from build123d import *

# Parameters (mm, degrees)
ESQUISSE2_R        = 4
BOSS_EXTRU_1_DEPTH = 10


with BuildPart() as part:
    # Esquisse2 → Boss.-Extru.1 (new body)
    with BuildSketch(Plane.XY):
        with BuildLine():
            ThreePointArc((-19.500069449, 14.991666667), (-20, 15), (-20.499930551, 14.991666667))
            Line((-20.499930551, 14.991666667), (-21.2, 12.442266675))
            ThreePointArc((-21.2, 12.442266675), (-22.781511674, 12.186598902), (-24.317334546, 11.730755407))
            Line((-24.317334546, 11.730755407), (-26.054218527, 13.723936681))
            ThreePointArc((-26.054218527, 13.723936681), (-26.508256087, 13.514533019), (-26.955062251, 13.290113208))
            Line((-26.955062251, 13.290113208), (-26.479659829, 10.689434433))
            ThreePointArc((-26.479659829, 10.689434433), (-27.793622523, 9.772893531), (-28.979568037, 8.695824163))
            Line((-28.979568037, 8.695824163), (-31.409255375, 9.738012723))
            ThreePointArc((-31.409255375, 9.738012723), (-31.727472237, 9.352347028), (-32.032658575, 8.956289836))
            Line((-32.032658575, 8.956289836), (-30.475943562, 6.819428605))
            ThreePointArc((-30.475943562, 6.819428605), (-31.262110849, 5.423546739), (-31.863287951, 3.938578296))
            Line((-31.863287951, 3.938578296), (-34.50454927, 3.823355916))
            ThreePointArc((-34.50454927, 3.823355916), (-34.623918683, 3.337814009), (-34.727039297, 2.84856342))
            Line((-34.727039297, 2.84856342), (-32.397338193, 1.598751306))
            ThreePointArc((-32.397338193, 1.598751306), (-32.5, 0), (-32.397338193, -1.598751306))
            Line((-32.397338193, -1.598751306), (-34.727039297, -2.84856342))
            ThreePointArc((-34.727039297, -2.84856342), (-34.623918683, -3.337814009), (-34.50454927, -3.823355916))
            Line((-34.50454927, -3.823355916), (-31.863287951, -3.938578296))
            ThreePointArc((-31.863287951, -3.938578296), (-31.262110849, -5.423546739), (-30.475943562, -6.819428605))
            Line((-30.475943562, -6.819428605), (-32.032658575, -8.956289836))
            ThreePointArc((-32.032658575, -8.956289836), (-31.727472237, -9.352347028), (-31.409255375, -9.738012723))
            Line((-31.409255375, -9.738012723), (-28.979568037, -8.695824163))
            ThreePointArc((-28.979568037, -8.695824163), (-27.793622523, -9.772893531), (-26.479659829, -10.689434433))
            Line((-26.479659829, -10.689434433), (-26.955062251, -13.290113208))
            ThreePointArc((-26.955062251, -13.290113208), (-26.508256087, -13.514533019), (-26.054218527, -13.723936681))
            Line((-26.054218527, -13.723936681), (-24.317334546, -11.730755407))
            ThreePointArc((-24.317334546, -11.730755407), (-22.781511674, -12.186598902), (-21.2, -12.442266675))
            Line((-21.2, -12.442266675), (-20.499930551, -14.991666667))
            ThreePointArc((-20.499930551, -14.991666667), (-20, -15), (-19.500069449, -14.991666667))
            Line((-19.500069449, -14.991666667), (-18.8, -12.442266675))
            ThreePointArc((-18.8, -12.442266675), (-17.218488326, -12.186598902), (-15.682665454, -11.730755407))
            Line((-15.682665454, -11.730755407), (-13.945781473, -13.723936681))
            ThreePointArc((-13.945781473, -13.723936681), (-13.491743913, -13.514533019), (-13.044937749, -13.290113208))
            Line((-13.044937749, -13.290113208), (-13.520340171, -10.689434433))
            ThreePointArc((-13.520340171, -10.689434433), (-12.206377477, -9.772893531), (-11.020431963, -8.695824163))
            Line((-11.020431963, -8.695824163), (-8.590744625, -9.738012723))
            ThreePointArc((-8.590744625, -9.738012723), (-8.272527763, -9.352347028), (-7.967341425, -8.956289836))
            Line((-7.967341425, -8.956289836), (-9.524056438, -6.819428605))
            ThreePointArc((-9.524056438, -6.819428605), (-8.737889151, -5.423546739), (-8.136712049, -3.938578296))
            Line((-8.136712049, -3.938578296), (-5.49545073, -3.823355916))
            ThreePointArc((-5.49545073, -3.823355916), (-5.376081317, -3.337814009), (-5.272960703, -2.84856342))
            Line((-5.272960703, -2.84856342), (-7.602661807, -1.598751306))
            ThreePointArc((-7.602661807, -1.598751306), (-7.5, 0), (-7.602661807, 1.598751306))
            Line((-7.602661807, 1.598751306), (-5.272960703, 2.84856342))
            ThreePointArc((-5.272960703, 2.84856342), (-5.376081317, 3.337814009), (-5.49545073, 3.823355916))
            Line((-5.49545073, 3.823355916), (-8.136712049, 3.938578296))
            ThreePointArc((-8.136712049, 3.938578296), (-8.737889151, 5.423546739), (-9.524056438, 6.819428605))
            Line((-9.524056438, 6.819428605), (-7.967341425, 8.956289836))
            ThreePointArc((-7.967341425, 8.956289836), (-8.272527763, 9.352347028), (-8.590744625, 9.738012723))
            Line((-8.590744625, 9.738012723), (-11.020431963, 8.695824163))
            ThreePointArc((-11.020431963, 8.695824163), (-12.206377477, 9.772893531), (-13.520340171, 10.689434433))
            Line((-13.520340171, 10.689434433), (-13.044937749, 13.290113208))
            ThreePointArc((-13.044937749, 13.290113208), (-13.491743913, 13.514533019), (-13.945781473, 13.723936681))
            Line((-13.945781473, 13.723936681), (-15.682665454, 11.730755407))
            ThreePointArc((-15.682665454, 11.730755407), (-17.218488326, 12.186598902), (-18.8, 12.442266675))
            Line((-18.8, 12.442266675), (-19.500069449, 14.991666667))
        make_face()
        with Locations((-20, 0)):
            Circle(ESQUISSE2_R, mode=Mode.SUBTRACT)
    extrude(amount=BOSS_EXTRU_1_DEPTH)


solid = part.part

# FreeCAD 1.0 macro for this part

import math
import FreeCAD as App
import Part
import Sketcher

V = App.Vector

doc = App.newDocument("Part")
body = doc.addObject("PartDesign::Body", "Body")

sketch1 = body.newObject("Sketcher::SketchObject", "Sketch")
sketch1.AttachmentSupport = (doc.getObject("XY_Plane"), [""])
sketch1.MapMode = "FlatFace"
sketch1.addGeometry([
    Part.ArcOfCircle(Part.Circle(V(-20, 0, 0), V(0, 0, 1), 15), math.radians(88.09), math.radians(91.91)),
    Part.LineSegment(V(-20.5, 15, 0), V(-21.2, 12.4, 0)),
    Part.ArcOfCircle(Part.Circle(V(-20, 0, 0), V(0, 0, 1), 12.5), math.radians(95.51), math.radians(110.21)),
    Part.LineSegment(V(-24.3, 11.7, 0), V(-26.1, 13.7, 0)),
    Part.ArcOfCircle(Part.Circle(V(-20, 0, 0), V(0, 0, 1), 15), math.radians(113.8), math.radians(117.62)),
    Part.LineSegment(V(-27, 13.3, 0), V(-26.5, 10.7, 0)),
    Part.ArcOfCircle(Part.Circle(V(-20, 0, 0), V(0, 0, 1), 12.5), math.radians(121.22), math.radians(135.92)),
    Part.LineSegment(V(-29, 8.7, 0), V(-31.4, 9.7, 0)),
    Part.ArcOfCircle(Part.Circle(V(-20, 0, 0), V(0, 0, 1), 15), math.radians(139.52), math.radians(143.34)),
    Part.LineSegment(V(-32, 9, 0), V(-30.5, 6.8, 0)),
    Part.ArcOfCircle(Part.Circle(V(-20, 0, 0), V(0, 0, 1), 12.5), math.radians(146.94), math.radians(161.63)),
    Part.LineSegment(V(-31.9, 3.9, 0), V(-34.5, 3.8, 0)),
    Part.ArcOfCircle(Part.Circle(V(-20, 0, 0), V(0, 0, 1), 15), math.radians(165.23), math.radians(169.05)),
    Part.LineSegment(V(-34.7, 2.8, 0), V(-32.4, 1.6, 0)),
    Part.ArcOfCircle(Part.Circle(V(-20, 0, 0), V(0, 0, 1), 12.5), math.radians(172.65), math.radians(187.35)),
    Part.LineSegment(V(-32.4, -1.6, 0), V(-34.7, -2.8, 0)),
    Part.ArcOfCircle(Part.Circle(V(-20, 0, 0), V(0, 0, 1), 15), math.radians(-169.05), math.radians(-165.23)),
    Part.LineSegment(V(-34.5, -3.8, 0), V(-31.9, -3.9, 0)),
    Part.ArcOfCircle(Part.Circle(V(-20, 0, 0), V(0, 0, 1), 12.5), math.radians(-161.63), math.radians(-146.94)),
    Part.LineSegment(V(-30.5, -6.8, 0), V(-32, -9, 0)),
    Part.ArcOfCircle(Part.Circle(V(-20, 0, 0), V(0, 0, 1), 15), math.radians(-143.34), math.radians(-139.52)),
    Part.LineSegment(V(-31.4, -9.7, 0), V(-29, -8.7, 0)),
    Part.ArcOfCircle(Part.Circle(V(-20, 0, 0), V(0, 0, 1), 12.5), math.radians(-135.92), math.radians(-121.22)),
    Part.LineSegment(V(-26.5, -10.7, 0), V(-27, -13.3, 0)),
    Part.ArcOfCircle(Part.Circle(V(-20, 0, 0), V(0, 0, 1), 15), math.radians(-117.62), math.radians(-113.8)),
    Part.LineSegment(V(-26.1, -13.7, 0), V(-24.3, -11.7, 0)),
    Part.ArcOfCircle(Part.Circle(V(-20, 0, 0), V(0, 0, 1), 12.5), math.radians(-110.21), math.radians(-95.51)),
    Part.LineSegment(V(-21.2, -12.4, 0), V(-20.5, -15, 0)),
    Part.ArcOfCircle(Part.Circle(V(-20, 0, 0), V(0, 0, 1), 15), math.radians(-91.91), math.radians(-88.09)),
    Part.LineSegment(V(-19.5, -15, 0), V(-18.8, -12.4, 0)),
    Part.ArcOfCircle(Part.Circle(V(-20, 0, 0), V(0, 0, 1), 12.5), math.radians(-84.49), math.radians(-69.79)),
    Part.LineSegment(V(-15.7, -11.7, 0), V(-13.9, -13.7, 0)),
    Part.ArcOfCircle(Part.Circle(V(-20, 0, 0), V(0, 0, 1), 15), math.radians(-66.2), math.radians(-62.38)),
    Part.LineSegment(V(-13, -13.3, 0), V(-13.5, -10.7, 0)),
    Part.ArcOfCircle(Part.Circle(V(-20, 0, 0), V(0, 0, 1), 12.5), math.radians(-58.78), math.radians(-44.08)),
    Part.LineSegment(V(-11, -8.7, 0), V(-8.6, -9.7, 0)),
    Part.ArcOfCircle(Part.Circle(V(-20, 0, 0), V(0, 0, 1), 15), math.radians(-40.48), math.radians(-36.66)),
    Part.LineSegment(V(-8, -9, 0), V(-9.5, -6.8, 0)),
    Part.ArcOfCircle(Part.Circle(V(-20, 0, 0), V(0, 0, 1), 12.5), math.radians(-33.06), math.radians(-18.37)),
    Part.LineSegment(V(-8.1, -3.9, 0), V(-5.5, -3.8, 0)),
    Part.ArcOfCircle(Part.Circle(V(-20, 0, 0), V(0, 0, 1), 15), math.radians(-14.77), math.radians(-10.95)),
    Part.LineSegment(V(-5.3, -2.8, 0), V(-7.6, -1.6, 0)),
    Part.ArcOfCircle(Part.Circle(V(-20, 0, 0), V(0, 0, 1), 12.5), math.radians(-7.35), math.radians(7.35)),
    Part.LineSegment(V(-7.6, 1.6, 0), V(-5.3, 2.8, 0)),
    Part.ArcOfCircle(Part.Circle(V(-20, 0, 0), V(0, 0, 1), 15), math.radians(10.95), math.radians(14.77)),
    Part.LineSegment(V(-5.5, 3.8, 0), V(-8.1, 3.9, 0)),
    Part.ArcOfCircle(Part.Circle(V(-20, 0, 0), V(0, 0, 1), 12.5), math.radians(18.37), math.radians(33.06)),
    Part.LineSegment(V(-9.5, 6.8, 0), V(-8, 9, 0)),
    Part.ArcOfCircle(Part.Circle(V(-20, 0, 0), V(0, 0, 1), 15), math.radians(36.66), math.radians(40.48)),
    Part.LineSegment(V(-8.6, 9.7, 0), V(-11, 8.7, 0)),
    Part.ArcOfCircle(Part.Circle(V(-20, 0, 0), V(0, 0, 1), 12.5), math.radians(44.08), math.radians(58.78)),
    Part.LineSegment(V(-13.5, 10.7, 0), V(-13, 13.3, 0)),
    Part.ArcOfCircle(Part.Circle(V(-20, 0, 0), V(0, 0, 1), 15), math.radians(62.38), math.radians(66.2)),
    Part.LineSegment(V(-13.9, 13.7, 0), V(-15.7, 11.7, 0)),
    Part.ArcOfCircle(Part.Circle(V(-20, 0, 0), V(0, 0, 1), 12.5), math.radians(69.79), math.radians(84.49)),
    Part.LineSegment(V(-18.8, 12.4, 0), V(-19.5, 15, 0)),
    Part.Circle(V(-20, 0, 0), V(0, 0, 1), 4),
], False)
sketch1.addConstraint([
    Sketcher.Constraint("Coincident", 0, 2, 1, 1),
    Sketcher.Constraint("Coincident", 1, 2, 2, 1),
    Sketcher.Constraint("Coincident", 2, 2, 3, 1),
    Sketcher.Constraint("Coincident", 3, 2, 4, 1),
    Sketcher.Constraint("Coincident", 4, 2, 5, 1),
    Sketcher.Constraint("Coincident", 5, 2, 6, 1),
    Sketcher.Constraint("Coincident", 6, 2, 7, 1),
    Sketcher.Constraint("Coincident", 7, 2, 8, 1),
    Sketcher.Constraint("Coincident", 8, 2, 9, 1),
    Sketcher.Constraint("Coincident", 9, 2, 10, 1),
    Sketcher.Constraint("Coincident", 10, 2, 11, 1),
    Sketcher.Constraint("Coincident", 11, 2, 12, 1),
    Sketcher.Constraint("Coincident", 12, 2, 13, 1),
    Sketcher.Constraint("Coincident", 13, 2, 14, 1),
    Sketcher.Constraint("Coincident", 14, 2, 15, 1),
    Sketcher.Constraint("Coincident", 15, 2, 16, 1),
    Sketcher.Constraint("Coincident", 16, 2, 17, 1),
    Sketcher.Constraint("Coincident", 17, 2, 18, 1),
    Sketcher.Constraint("Coincident", 18, 2, 19, 1),
    Sketcher.Constraint("Coincident", 19, 2, 20, 1),
    Sketcher.Constraint("Coincident", 20, 2, 21, 1),
    Sketcher.Constraint("Coincident", 21, 2, 22, 1),
    Sketcher.Constraint("Coincident", 22, 2, 23, 1),
    Sketcher.Constraint("Coincident", 23, 2, 24, 1),
    Sketcher.Constraint("Coincident", 24, 2, 25, 1),
    Sketcher.Constraint("Coincident", 25, 2, 26, 1),
    Sketcher.Constraint("Coincident", 26, 2, 27, 1),
    Sketcher.Constraint("Coincident", 27, 2, 28, 1),
    Sketcher.Constraint("Coincident", 28, 2, 29, 1),
    Sketcher.Constraint("Coincident", 29, 2, 30, 1),
    Sketcher.Constraint("Coincident", 30, 2, 31, 1),
    Sketcher.Constraint("Coincident", 31, 2, 32, 1),
    Sketcher.Constraint("Coincident", 32, 2, 33, 1),
    Sketcher.Constraint("Coincident", 33, 2, 34, 1),
    Sketcher.Constraint("Coincident", 34, 2, 35, 1),
    Sketcher.Constraint("Coincident", 35, 2, 36, 1),
    Sketcher.Constraint("Coincident", 36, 2, 37, 1),
    Sketcher.Constraint("Coincident", 37, 2, 38, 1),
    Sketcher.Constraint("Coincident", 38, 2, 39, 1),
    Sketcher.Constraint("Coincident", 39, 2, 40, 1),
    Sketcher.Constraint("Coincident", 40, 2, 41, 1),
    Sketcher.Constraint("Coincident", 41, 2, 42, 1),
    Sketcher.Constraint("Coincident", 42, 2, 43, 1),
    Sketcher.Constraint("Coincident", 43, 2, 44, 1),
    Sketcher.Constraint("Coincident", 44, 2, 45, 1),
    Sketcher.Constraint("Coincident", 45, 2, 46, 1),
    Sketcher.Constraint("Coincident", 46, 2, 47, 1),
    Sketcher.Constraint("Coincident", 47, 2, 48, 1),
    Sketcher.Constraint("Coincident", 48, 2, 49, 1),
    Sketcher.Constraint("Coincident", 49, 2, 50, 1),
    Sketcher.Constraint("Coincident", 50, 2, 51, 1),
    Sketcher.Constraint("Coincident", 51, 2, 52, 1),
    Sketcher.Constraint("Coincident", 52, 2, 53, 1),
    Sketcher.Constraint("Coincident", 53, 2, 54, 1),
    Sketcher.Constraint("Coincident", 54, 2, 55, 1),
    Sketcher.Constraint("Coincident", 55, 2, 0, 1),
    Sketcher.Constraint("Coincident", 2, 3, 0, 3),
    Sketcher.Constraint("Coincident", 4, 3, 0, 3),
    Sketcher.Constraint("Coincident", 6, 3, 0, 3),
    Sketcher.Constraint("Coincident", 8, 3, 0, 3),
    Sketcher.Constraint("Coincident", 10, 3, 0, 3),
    Sketcher.Constraint("Coincident", 12, 3, 0, 3),
    Sketcher.Constraint("Coincident", 14, 3, 0, 3),
    Sketcher.Constraint("Coincident", 16, 3, 0, 3),
    Sketcher.Constraint("Coincident", 18, 3, 0, 3),
    Sketcher.Constraint("Coincident", 20, 3, 0, 3),
    Sketcher.Constraint("Coincident", 22, 3, 0, 3),
    Sketcher.Constraint("Coincident", 24, 3, 0, 3),
    Sketcher.Constraint("Coincident", 26, 3, 0, 3),
    Sketcher.Constraint("Coincident", 28, 3, 0, 3),
    Sketcher.Constraint("Coincident", 30, 3, 0, 3),
    Sketcher.Constraint("Coincident", 32, 3, 0, 3),
    Sketcher.Constraint("Coincident", 34, 3, 0, 3),
    Sketcher.Constraint("Coincident", 36, 3, 0, 3),
    Sketcher.Constraint("Coincident", 38, 3, 0, 3),
    Sketcher.Constraint("Coincident", 40, 3, 0, 3),
    Sketcher.Constraint("Coincident", 42, 3, 0, 3),
    Sketcher.Constraint("Coincident", 44, 3, 0, 3),
    Sketcher.Constraint("Coincident", 46, 3, 0, 3),
    Sketcher.Constraint("Coincident", 48, 3, 0, 3),
    Sketcher.Constraint("Coincident", 50, 3, 0, 3),
    Sketcher.Constraint("Coincident", 52, 3, 0, 3),
    Sketcher.Constraint("Coincident", 54, 3, 0, 3),
    Sketcher.Constraint("Coincident", 56, 3, 0, 3),
    Sketcher.Constraint("Equal", 0, 4),
    Sketcher.Constraint("Equal", 2, 6),
    Sketcher.Constraint("Equal", 4, 8),
    Sketcher.Constraint("Equal", 6, 10),
    Sketcher.Constraint("Equal", 8, 12),
    Sketcher.Constraint("Equal", 10, 14),
    Sketcher.Constraint("Equal", 12, 16),
    Sketcher.Constraint("Equal", 14, 18),
    Sketcher.Constraint("Equal", 16, 20),
    Sketcher.Constraint("Equal", 18, 22),
    Sketcher.Constraint("Equal", 20, 24),
    Sketcher.Constraint("Equal", 22, 26),
    Sketcher.Constraint("Equal", 24, 28),
    Sketcher.Constraint("Equal", 26, 30),
    Sketcher.Constraint("Equal", 28, 32),
    Sketcher.Constraint("Equal", 30, 34),
    Sketcher.Constraint("Equal", 32, 36),
    Sketcher.Constraint("Equal", 34, 38),
    Sketcher.Constraint("Equal", 36, 40),
    Sketcher.Constraint("Equal", 38, 42),
    Sketcher.Constraint("Equal", 40, 44),
    Sketcher.Constraint("Equal", 42, 46),
    Sketcher.Constraint("Equal", 44, 48),
    Sketcher.Constraint("Equal", 46, 50),
    Sketcher.Constraint("Equal", 48, 52),
    Sketcher.Constraint("Equal", 50, 54),
    Sketcher.Constraint("Symmetric", 13, 2, 14, 2, -1),
    Sketcher.Constraint("Parallel", 1, 29),
    Sketcher.Constraint("Parallel", 3, 31),
    Sketcher.Constraint("Parallel", 5, 33),
    Sketcher.Constraint("Parallel", 7, 35),
    Sketcher.Constraint("Parallel", 9, 37),
    Sketcher.Constraint("Parallel", 11, 39),
    Sketcher.Constraint("Parallel", 13, 41),
    Sketcher.Constraint("Parallel", 15, 43),
    Sketcher.Constraint("Parallel", 17, 45),
    Sketcher.Constraint("Parallel", 19, 47),
    Sketcher.Constraint("Parallel", 21, 49),
    Sketcher.Constraint("Parallel", 23, 51),
    Sketcher.Constraint("Parallel", 25, 53),
    Sketcher.Constraint("Parallel", 27, 55),
    Sketcher.Constraint("Horizontal", 27, 2, 28, 2),
    Sketcher.Constraint("Horizontal", 26, 2, 29, 2),
    Sketcher.Constraint("Horizontal", 25, 2, 30, 2),
    Sketcher.Constraint("Horizontal", 24, 2, 31, 2),
    Sketcher.Constraint("Horizontal", 23, 2, 32, 2),
    Sketcher.Constraint("Horizontal", 22, 2, 33, 2),
    Sketcher.Constraint("Horizontal", 21, 2, 34, 2),
    Sketcher.Constraint("Horizontal", 20, 2, 35, 2),
    Sketcher.Constraint("Horizontal", 19, 2, 36, 2),
    Sketcher.Constraint("Horizontal", 18, 2, 37, 2),
    Sketcher.Constraint("Horizontal", 17, 2, 38, 2),
    Sketcher.Constraint("Horizontal", 16, 2, 39, 2),
    Sketcher.Constraint("Horizontal", 15, 2, 40, 2),
    Sketcher.Constraint("Horizontal", 14, 2, 41, 2),
    Sketcher.Constraint("Horizontal", 13, 2, 42, 2),
    Sketcher.Constraint("Horizontal", 11, 2, 44, 2),
    Sketcher.Constraint("Horizontal", 9, 2, 46, 2),
    Sketcher.Constraint("Horizontal", 7, 2, 48, 2),
    Sketcher.Constraint("Horizontal", 5, 2, 50, 2),
    Sketcher.Constraint("Horizontal", 3, 2, 52, 2),
    Sketcher.Constraint("Horizontal", 1, 2, 54, 2),
    Sketcher.Constraint("Vertical", 11, 2, 16, 2),
    Sketcher.Constraint("Vertical", 9, 2, 18, 2),
    Sketcher.Constraint("Vertical", 7, 2, 20, 2),
    Sketcher.Constraint("Vertical", 5, 2, 22, 2),
    Sketcher.Constraint("Vertical", 3, 2, 24, 2),
    Sketcher.Constraint("Vertical", 1, 2, 26, 2),
    Sketcher.Constraint("Equal", 1, 3),
    Sketcher.Constraint("Equal", 3, 5),
    Sketcher.Constraint("Equal", 5, 7),
    Sketcher.Constraint("Equal", 7, 9),
    Sketcher.Constraint("Equal", 9, 11),
    Sketcher.Constraint("Equal", 11, 13),
    Sketcher.Constraint("Diameter", 56, 8.0),
    Sketcher.Constraint("Radius", 0, 15.000001),
    Sketcher.Constraint("Radius", 2, 12.5),
    Sketcher.Constraint("DistanceX", 0, 3, -1, 1, 20.0),
    Sketcher.Constraint("DistanceX", 1, 2, -1, 1, 21.2),
    Sketcher.Constraint("DistanceX", 0, 2, -1, 1, 20.499931),
    Sketcher.Constraint("DistanceX", 3, 2, -1, 1, 26.054219),
    Sketcher.Constraint("DistanceX", 5, 2, -1, 1, 26.47966),
    Sketcher.Constraint("DistanceX", 6, 2, -1, 1, 28.979568),
    Sketcher.Constraint("DistanceX", 8, 2, -1, 1, 32.032659),
    Sketcher.Constraint("DistanceY", -1, 1, 10, 2, 3.938578),
    Sketcher.Constraint("DistanceX", 12, 2, -1, 1, 34.727039),
])
pad1 = body.newObject("PartDesign::Pad", "Pad")
pad1.Profile = sketch1
pad1.Length = 10

doc.recompute()
